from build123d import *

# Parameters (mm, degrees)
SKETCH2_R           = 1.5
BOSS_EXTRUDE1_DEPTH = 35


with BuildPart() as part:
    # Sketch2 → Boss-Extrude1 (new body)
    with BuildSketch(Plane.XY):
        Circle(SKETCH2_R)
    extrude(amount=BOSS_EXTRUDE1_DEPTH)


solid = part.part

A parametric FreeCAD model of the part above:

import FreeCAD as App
import Part
import Sketcher

V = App.Vector

doc = App.newDocument("Part")
body = doc.addObject("PartDesign::Body", "Body")

# Sketch on XY plane
sketch1 = body.newObject("Sketcher::SketchObject", "Sketch")
sketch1.AttachmentSupport = (doc.getObject("XY_Plane"), [""])
sketch1.MapMode = "FlatFace"
sketch1.addGeometry(Part.Circle(V(0, 0, 0), V(0, 0, 1), 1.5), False)
sketch1.addConstraint([
    Sketcher.Constraint("Coincident", 0, 3, -1, 1),
    Sketcher.Constraint("Diameter", 0, 3.0),
])
pad1 = body.newObject("PartDesign::Pad", "Pad")
pad1.Profile = sketch1
pad1.Length = 35

doc.recompute()
